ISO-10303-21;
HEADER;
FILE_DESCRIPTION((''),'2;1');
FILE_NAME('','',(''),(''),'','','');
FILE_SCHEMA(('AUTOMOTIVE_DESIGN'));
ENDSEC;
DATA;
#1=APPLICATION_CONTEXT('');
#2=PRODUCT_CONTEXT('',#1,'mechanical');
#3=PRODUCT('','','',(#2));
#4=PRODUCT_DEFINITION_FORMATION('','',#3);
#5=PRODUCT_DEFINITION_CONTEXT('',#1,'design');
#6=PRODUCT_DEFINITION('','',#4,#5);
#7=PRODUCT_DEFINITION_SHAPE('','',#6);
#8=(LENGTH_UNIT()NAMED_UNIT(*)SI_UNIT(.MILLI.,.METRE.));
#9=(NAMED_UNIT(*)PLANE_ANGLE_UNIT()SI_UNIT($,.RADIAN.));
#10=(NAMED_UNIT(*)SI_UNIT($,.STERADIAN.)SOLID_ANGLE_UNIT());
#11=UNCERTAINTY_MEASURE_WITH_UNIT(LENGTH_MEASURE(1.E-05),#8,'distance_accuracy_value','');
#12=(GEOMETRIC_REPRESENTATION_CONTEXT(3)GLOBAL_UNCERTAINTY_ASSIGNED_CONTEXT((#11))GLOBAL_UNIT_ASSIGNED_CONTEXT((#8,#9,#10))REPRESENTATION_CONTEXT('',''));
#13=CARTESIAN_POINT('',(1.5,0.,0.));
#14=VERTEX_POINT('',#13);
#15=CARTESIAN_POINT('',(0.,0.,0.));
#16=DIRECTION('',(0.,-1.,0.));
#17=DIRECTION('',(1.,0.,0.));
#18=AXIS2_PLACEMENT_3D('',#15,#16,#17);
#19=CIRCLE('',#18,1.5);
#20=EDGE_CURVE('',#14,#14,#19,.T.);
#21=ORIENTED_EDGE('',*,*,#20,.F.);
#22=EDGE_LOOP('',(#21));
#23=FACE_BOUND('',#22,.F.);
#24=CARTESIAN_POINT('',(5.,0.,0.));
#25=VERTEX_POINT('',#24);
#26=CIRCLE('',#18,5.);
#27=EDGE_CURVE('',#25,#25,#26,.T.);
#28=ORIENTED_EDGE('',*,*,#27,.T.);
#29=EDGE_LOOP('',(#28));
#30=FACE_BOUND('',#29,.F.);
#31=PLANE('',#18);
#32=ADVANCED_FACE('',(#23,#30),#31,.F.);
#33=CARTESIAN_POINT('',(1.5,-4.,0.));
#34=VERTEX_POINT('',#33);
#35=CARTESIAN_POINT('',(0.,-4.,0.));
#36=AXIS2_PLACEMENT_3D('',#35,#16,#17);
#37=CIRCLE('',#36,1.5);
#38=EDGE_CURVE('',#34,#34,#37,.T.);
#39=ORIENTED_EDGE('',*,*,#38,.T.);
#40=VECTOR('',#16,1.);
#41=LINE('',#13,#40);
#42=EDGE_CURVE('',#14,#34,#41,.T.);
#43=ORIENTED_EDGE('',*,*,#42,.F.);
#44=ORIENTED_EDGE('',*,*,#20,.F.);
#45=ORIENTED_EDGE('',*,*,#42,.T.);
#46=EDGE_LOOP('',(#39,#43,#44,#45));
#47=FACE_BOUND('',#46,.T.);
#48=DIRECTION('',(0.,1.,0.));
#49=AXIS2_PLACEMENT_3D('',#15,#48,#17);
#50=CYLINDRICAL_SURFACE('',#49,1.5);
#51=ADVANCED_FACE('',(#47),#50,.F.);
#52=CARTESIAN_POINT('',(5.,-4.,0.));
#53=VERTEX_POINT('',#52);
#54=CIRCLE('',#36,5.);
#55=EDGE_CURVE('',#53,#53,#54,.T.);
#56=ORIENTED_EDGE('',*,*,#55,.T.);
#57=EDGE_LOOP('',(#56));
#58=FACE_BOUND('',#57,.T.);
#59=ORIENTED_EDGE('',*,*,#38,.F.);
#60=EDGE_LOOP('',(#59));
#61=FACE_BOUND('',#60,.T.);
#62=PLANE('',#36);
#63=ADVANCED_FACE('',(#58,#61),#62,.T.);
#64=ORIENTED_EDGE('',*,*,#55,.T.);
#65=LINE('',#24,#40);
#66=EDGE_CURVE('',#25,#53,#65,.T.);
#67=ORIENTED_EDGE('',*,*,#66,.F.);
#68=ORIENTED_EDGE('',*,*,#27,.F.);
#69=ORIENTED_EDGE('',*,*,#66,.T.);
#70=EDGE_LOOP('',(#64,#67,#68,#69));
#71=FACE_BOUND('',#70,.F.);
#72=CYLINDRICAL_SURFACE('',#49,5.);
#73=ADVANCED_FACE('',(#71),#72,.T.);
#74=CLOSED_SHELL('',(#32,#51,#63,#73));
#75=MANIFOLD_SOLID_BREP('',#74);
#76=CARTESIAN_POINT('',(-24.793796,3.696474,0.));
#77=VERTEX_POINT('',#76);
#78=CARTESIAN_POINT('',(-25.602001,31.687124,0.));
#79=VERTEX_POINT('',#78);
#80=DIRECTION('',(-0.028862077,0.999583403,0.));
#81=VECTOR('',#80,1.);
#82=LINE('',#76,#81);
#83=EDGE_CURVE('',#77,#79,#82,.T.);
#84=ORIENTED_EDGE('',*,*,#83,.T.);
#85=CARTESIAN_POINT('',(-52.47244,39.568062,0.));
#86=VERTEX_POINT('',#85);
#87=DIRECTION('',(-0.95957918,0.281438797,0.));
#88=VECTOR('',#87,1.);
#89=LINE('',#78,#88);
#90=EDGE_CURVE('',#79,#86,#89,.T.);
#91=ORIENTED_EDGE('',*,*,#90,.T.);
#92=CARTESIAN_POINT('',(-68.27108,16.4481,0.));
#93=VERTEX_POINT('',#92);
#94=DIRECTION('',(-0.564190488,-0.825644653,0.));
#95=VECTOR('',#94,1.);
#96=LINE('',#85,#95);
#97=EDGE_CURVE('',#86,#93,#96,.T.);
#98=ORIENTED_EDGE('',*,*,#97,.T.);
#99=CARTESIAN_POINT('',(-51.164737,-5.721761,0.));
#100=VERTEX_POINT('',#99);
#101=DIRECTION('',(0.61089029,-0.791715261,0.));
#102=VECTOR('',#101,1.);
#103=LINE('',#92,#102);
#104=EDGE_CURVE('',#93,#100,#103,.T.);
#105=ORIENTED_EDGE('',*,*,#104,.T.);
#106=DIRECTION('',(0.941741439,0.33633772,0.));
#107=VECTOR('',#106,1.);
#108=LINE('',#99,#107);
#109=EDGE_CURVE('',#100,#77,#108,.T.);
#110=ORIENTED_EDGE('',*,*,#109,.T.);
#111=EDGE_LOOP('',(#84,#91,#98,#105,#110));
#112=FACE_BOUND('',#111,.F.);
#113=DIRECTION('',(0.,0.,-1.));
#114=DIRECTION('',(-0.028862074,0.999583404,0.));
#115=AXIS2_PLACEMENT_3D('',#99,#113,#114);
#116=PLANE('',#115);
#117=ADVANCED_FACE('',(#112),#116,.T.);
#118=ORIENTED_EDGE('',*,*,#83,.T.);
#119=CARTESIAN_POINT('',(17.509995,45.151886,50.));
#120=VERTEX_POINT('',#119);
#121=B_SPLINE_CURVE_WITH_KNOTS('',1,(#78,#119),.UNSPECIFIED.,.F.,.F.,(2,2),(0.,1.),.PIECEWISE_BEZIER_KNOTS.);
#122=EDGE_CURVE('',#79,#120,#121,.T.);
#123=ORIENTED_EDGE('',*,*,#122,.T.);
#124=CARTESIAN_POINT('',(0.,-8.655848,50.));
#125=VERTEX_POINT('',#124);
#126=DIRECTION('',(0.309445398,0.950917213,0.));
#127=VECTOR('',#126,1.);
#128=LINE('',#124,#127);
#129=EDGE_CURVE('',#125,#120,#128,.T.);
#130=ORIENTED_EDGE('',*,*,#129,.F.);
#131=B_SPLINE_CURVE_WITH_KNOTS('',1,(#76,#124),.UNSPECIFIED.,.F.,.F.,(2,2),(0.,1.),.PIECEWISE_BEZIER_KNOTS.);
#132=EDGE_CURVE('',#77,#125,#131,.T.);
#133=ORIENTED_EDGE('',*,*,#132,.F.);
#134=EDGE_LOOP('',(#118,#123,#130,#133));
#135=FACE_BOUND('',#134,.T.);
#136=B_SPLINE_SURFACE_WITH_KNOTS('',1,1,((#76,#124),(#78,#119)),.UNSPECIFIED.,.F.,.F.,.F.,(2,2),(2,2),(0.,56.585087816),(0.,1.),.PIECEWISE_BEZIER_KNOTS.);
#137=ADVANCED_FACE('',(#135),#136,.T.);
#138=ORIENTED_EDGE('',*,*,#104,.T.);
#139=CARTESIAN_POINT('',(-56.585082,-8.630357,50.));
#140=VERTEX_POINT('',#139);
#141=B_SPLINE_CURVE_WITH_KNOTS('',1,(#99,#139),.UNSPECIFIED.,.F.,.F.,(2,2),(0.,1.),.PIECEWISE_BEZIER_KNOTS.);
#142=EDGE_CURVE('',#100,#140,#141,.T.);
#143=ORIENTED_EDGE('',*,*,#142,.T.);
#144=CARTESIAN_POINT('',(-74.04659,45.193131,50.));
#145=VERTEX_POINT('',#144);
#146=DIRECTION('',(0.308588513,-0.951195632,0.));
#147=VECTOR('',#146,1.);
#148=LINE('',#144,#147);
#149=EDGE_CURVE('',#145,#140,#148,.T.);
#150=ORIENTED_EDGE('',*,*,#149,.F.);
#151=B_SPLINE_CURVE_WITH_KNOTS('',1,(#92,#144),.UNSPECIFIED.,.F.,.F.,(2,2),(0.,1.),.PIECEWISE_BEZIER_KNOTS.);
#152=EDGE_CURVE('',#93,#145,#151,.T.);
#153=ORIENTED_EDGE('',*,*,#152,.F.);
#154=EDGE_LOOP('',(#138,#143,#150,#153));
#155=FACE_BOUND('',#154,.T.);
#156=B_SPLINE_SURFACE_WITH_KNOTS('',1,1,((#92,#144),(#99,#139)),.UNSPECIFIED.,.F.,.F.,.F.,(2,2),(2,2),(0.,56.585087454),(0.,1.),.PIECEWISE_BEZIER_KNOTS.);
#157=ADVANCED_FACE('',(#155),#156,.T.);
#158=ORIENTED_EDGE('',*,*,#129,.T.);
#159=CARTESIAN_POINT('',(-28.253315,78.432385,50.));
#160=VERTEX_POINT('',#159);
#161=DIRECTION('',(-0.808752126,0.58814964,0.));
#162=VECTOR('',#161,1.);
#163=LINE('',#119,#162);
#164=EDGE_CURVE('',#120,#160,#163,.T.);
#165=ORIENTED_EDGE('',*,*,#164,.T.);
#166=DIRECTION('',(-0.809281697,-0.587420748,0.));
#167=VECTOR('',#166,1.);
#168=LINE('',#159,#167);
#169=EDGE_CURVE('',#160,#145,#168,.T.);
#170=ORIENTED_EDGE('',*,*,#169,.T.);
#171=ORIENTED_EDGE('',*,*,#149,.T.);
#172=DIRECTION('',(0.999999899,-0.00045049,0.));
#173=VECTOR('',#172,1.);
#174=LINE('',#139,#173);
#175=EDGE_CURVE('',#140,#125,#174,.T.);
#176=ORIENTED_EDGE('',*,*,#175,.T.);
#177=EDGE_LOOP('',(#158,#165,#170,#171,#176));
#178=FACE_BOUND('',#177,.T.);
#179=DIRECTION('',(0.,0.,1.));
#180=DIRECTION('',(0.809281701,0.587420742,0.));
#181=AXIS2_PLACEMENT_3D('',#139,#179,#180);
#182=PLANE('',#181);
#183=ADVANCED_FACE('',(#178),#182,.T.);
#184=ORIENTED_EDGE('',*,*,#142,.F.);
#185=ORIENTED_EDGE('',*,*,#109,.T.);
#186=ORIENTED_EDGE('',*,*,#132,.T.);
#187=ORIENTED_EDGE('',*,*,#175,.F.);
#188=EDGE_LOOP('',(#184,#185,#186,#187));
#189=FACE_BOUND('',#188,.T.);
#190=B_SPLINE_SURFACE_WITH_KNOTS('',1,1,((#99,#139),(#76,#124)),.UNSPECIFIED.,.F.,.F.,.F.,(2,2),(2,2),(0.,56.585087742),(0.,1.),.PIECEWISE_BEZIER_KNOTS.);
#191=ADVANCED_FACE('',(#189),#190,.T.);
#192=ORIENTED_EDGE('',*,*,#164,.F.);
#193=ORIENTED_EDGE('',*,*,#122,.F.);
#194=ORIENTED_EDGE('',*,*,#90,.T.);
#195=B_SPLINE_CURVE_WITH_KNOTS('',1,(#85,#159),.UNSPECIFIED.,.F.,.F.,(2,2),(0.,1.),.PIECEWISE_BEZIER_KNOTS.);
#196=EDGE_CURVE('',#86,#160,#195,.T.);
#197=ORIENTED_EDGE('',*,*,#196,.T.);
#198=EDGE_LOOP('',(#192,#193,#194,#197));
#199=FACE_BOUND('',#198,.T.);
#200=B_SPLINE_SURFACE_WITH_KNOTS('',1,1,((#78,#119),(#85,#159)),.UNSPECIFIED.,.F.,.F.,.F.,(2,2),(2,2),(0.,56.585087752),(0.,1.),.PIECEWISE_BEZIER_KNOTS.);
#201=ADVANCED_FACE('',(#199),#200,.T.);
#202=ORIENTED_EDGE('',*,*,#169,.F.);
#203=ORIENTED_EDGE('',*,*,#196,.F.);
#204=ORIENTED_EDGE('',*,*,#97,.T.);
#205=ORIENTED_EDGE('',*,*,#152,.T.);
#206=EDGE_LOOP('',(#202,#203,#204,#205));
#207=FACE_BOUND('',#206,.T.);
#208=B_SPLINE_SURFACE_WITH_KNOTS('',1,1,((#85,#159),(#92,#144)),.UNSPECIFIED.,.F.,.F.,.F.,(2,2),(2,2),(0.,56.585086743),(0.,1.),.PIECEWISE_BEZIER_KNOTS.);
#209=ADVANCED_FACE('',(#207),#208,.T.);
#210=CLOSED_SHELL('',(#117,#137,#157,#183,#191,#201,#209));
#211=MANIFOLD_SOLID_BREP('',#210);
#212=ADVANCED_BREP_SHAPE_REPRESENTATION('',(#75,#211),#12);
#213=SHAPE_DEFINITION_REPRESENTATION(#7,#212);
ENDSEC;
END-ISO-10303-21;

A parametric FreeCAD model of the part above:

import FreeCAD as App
import Part
import Sketcher

V = App.Vector

doc = App.newDocument("Part")
body = doc.addObject("PartDesign::Body", "Body")

# Sketch on XZ plane
sketch1 = body.newObject("Sketcher::SketchObject", "Sketch")
sketch1.AttachmentSupport = (doc.getObject("XZ_Plane"), [""])
sketch1.MapMode = "FlatFace"
sketch1.addGeometry([
    Part.Circle(V(0, 0, 0), V(0, 0, 1), 5),
    Part.Circle(V(0, 0, 0), V(0, 0, 1), 1.5),
], False)
sketch1.addConstraint([
    Sketcher.Constraint("Coincident", 0, 3, -1, 1),
    Sketcher.Constraint("Coincident", 1, 3, -1, 1),
    Sketcher.Constraint("Diameter", 0, 10.0),
    Sketcher.Constraint("Diameter", 1, 3.0),
])
pad1 = body.newObject("PartDesign::Pad", "Pad")
pad1.Profile = sketch1
pad1.Length = 4
body2 = doc.addObject("PartDesign::Body", "Body001")

# Sketch on XY plane
sketch2 = body2.newObject("Sketcher::SketchObject", "Sketch001")
sketch2.AttachmentSupport = (doc.getObject("XY_Plane001"), [""])
sketch2.MapMode = "FlatFace"
sketch2.addGeometry([
    Part.LineSegment(V(-51, -6, 0), V(-25, 4, 0)),  # 0
    Part.LineSegment(V(-25, 4, 0), V(-26, 32, 0)),  # 1
    Part.LineSegment(V(-26, 32, 0), V(-52, 40, 0)),  # 2
    Part.LineSegment(V(-52, 40, 0), V(-68, 16, 0)),  # 3
    Part.LineSegment(V(-68, 16, 0), V(-51, -6, 0)),  # 4
], False)
sketch2.addConstraint([
    Sketcher.Constraint("Coincident", 0, 2, 1, 1),
    Sketcher.Constraint("Coincident", 1, 2, 2, 1),
    Sketcher.Constraint("Coincident", 2, 2, 3, 1),
    Sketcher.Constraint("Coincident", 3, 2, 4, 1),
    Sketcher.Constraint("Coincident", 4, 2, 0, 1),
    Sketcher.Constraint("Equal", 0, 1),
    Sketcher.Constraint("Equal", 1, 2),
    Sketcher.Constraint("Equal", 2, 3),
    Sketcher.Constraint("Equal", 3, 4),
    Sketcher.Constraint("DistanceX", 1, 2, -1, 1, 25.602001),
    Sketcher.Constraint("DistanceY", -1, 1, 3, 2, 16.4481),
    Sketcher.Constraint("DistanceX", 2, 2, -1, 1, 52.47244),
    Sketcher.Constraint("DistanceY", -1, 1, 2, 2, 39.568062),
    Sketcher.Constraint("DistanceX", 3, 2, -1, 1, 68.27108),
    Sketcher.Constraint("DistanceY", 4, 2, -1, 1, 5.721761),
])

# Sketch on XY plane
sketch3 = body2.newObject("Sketcher::SketchObject", "Sketch002")
sketch3.AttachmentSupport = (doc.getObject("XY_Plane001"), [""])
sketch3.MapMode = "FlatFace"
sketch3.AttachmentOffset = App.Placement(V(0, 0, 50), App.Rotation())
sketch3.addGeometry([
    Part.LineSegment(V(-57, -9, 0), V(0, -9, 0)),  # 0
    Part.LineSegment(V(0, -9, 0), V(18, 45, 0)),  # 1
    Part.LineSegment(V(18, 45, 0), V(-28, 78, 0)),  # 2
    Part.LineSegment(V(-28, 78, 0), V(-74, 45, 0)),  # 3
    Part.LineSegment(V(-74, 45, 0), V(-57, -9, 0)),  # 4
], False)
sketch3.addConstraint([
    Sketcher.Constraint("Coincident", 0, 2, 1, 1),
    Sketcher.Constraint("Coincident", 1, 2, 2, 1),
    Sketcher.Constraint("Coincident", 2, 2, 3, 1),
    Sketcher.Constraint("Coincident", 3, 2, 4, 1),
    Sketcher.Constraint("Coincident", 4, 2, 0, 1),
    Sketcher.Constraint("PointOnObject", 0, 2, -2),
    Sketcher.Constraint("Equal", 0, 1),
    Sketcher.Constraint("Equal", 1, 2),
    Sketcher.Constraint("Equal", 2, 3),
    Sketcher.Constraint("Equal", 3, 4),
    Sketcher.Constraint("DistanceY", 1, 2, 2, 2, 33.280499),
    Sketcher.Constraint("DistanceY", 0, 2, -1, 1, 8.655848),
    Sketcher.Constraint("DistanceX", 3, 2, -1, 1, 74.04659),
    Sketcher.Constraint("DistanceY", -1, 1, 3, 2, 45.193131),
    Sketcher.Constraint("DistanceX", 2, 2, 1, 2, 45.76331),
])

additiveloft = body2.newObject("PartDesign::AdditiveLoft", "AdditiveLoft")
additiveloft.Profile = sketch2
additiveloft.Sections = [sketch3]

doc.recompute()
